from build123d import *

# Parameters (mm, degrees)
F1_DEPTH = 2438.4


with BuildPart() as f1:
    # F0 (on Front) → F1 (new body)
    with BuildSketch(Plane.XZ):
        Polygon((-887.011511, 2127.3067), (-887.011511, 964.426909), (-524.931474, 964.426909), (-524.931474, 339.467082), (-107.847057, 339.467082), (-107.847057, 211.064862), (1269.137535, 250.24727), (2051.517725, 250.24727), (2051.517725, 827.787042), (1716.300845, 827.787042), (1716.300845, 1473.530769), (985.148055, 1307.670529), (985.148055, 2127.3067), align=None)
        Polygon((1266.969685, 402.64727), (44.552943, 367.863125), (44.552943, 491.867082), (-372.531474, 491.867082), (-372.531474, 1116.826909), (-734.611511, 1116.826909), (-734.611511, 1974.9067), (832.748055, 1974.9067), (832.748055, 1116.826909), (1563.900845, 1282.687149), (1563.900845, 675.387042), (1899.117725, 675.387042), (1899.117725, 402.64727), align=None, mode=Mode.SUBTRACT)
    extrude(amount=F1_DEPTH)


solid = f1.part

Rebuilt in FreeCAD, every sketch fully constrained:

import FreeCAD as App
import Part
import Sketcher
from FreeCAD import Vector
Q = App.Units.Quantity

doc = App.newDocument("Part")
body = doc.addObject("PartDesign::Body", "Body")

sketch1 = body.newObject("Sketcher::SketchObject", "Sketch")
sketch1.AttachmentSupport = (doc.getObject("XZ_Plane"), [""])
sketch1.MapMode = "FlatFace"
sketch1.addGeometry([
    Part.LineSegment(Vector(-887, 2127, 0), Vector(-887, 964, 0)),
    Part.LineSegment(Vector(-887, 964, 0), Vector(-525, 964, 0)),
    Part.LineSegment(Vector(-525, 964, 0), Vector(-525, 339, 0)),
    Part.LineSegment(Vector(-525, 339, 0), Vector(-108, 339, 0)),
    Part.LineSegment(Vector(-108, 339, 0), Vector(-108, 211, 0)),
    Part.LineSegment(Vector(-108, 211, 0), Vector(1269, 250, 0)),
    Part.LineSegment(Vector(1269, 250, 0), Vector(2052, 250, 0)),
    Part.LineSegment(Vector(2052, 250, 0), Vector(2052, 828, 0)),
    Part.LineSegment(Vector(2052, 828, 0), Vector(1716, 828, 0)),
    Part.LineSegment(Vector(1716, 828, 0), Vector(1716, 1474, 0)),
    Part.LineSegment(Vector(1716, 1474, 0), Vector(985, 1308, 0)),
    Part.LineSegment(Vector(985, 1308, 0), Vector(985, 2127, 0)),
    Part.LineSegment(Vector(985, 2127, 0), Vector(-887, 2127, 0)),
    Part.LineSegment(Vector(1899, 403, 0), Vector(1267, 403, 0)),
    Part.LineSegment(Vector(1267, 403, 0), Vector(45, 368, 0)),
    Part.LineSegment(Vector(45, 368, 0), Vector(45, 492, 0)),
    Part.LineSegment(Vector(45, 492, 0), Vector(-373, 492, 0)),
    Part.LineSegment(Vector(-373, 492, 0), Vector(-373, 1117, 0)),
    Part.LineSegment(Vector(-373, 1117, 0), Vector(-735, 1117, 0)),
    Part.LineSegment(Vector(-735, 1117, 0), Vector(-735, 1975, 0)),
    Part.LineSegment(Vector(-735, 1975, 0), Vector(833, 1975, 0)),
    Part.LineSegment(Vector(833, 1975, 0), Vector(833, 1117, 0)),
    Part.LineSegment(Vector(833, 1117, 0), Vector(1564, 1283, 0)),
    Part.LineSegment(Vector(1564, 1283, 0), Vector(1564, 675, 0)),
    Part.LineSegment(Vector(1564, 675, 0), Vector(1899, 675, 0)),
    Part.LineSegment(Vector(1899, 675, 0), Vector(1899, 403, 0)),
], False)
sketch1.addConstraint([
    Sketcher.Constraint("Coincident", 0, 2, 1, 1),
    Sketcher.Constraint("Coincident", 1, 2, 2, 1),
    Sketcher.Constraint("Coincident", 2, 2, 3, 1),
    Sketcher.Constraint("Coincident", 3, 2, 4, 1),
    Sketcher.Constraint("Coincident", 4, 2, 5, 1),
    Sketcher.Constraint("Coincident", 5, 2, 6, 1),
    Sketcher.Constraint("Coincident", 6, 2, 7, 1),
    Sketcher.Constraint("Coincident", 7, 2, 8, 1),
    Sketcher.Constraint("Coincident", 8, 2, 9, 1),
    Sketcher.Constraint("Coincident", 9, 2, 10, 1),
    Sketcher.Constraint("Coincident", 10, 2, 11, 1),
    Sketcher.Constraint("Coincident", 11, 2, 12, 1),
    Sketcher.Constraint("Coincident", 12, 2, 0, 1),
    Sketcher.Constraint("Coincident", 13, 2, 14, 1),
    Sketcher.Constraint("Coincident", 14, 2, 15, 1),
    Sketcher.Constraint("Coincident", 15, 2, 16, 1),
    Sketcher.Constraint("Coincident", 16, 2, 17, 1),
    Sketcher.Constraint("Coincident", 17, 2, 18, 1),
    Sketcher.Constraint("Coincident", 18, 2, 19, 1),
    Sketcher.Constraint("Coincident", 19, 2, 20, 1),
    Sketcher.Constraint("Coincident", 20, 2, 21, 1),
    Sketcher.Constraint("Coincident", 21, 2, 22, 1),
    Sketcher.Constraint("Coincident", 22, 2, 23, 1),
    Sketcher.Constraint("Coincident", 23, 2, 24, 1),
    Sketcher.Constraint("Coincident", 24, 2, 25, 1),
    Sketcher.Constraint("Coincident", 25, 2, 13, 1),
    Sketcher.Constraint("Vertical", 0),
    Sketcher.Constraint("Horizontal", 1),
    Sketcher.Constraint("Vertical", 2),
    Sketcher.Constraint("Horizontal", 3),
    Sketcher.Constraint("Vertical", 4),
    Sketcher.Constraint("Horizontal", 6),
    Sketcher.Constraint("Vertical", 7),
    Sketcher.Constraint("Horizontal", 8),
    Sketcher.Constraint("Vertical", 9),
    Sketcher.Constraint("Vertical", 11),
    Sketcher.Constraint("Horizontal", 12),
    Sketcher.Constraint("Horizontal", 13),
    Sketcher.Constraint("Vertical", 15),
    Sketcher.Constraint("Horizontal", 16),
    Sketcher.Constraint("Vertical", 17),
    Sketcher.Constraint("Horizontal", 18),
    Sketcher.Constraint("Vertical", 19),
    Sketcher.Constraint("Horizontal", 20),
    Sketcher.Constraint("Vertical", 21),
    Sketcher.Constraint("Vertical", 23),
    Sketcher.Constraint("Horizontal", 24),
    Sketcher.Constraint("Vertical", 25),
    Sketcher.Constraint("Parallel", 5, 14),
    Sketcher.Constraint("Parallel", 10, 22),
    Sketcher.Constraint("Horizontal", 18, 2, 21, 2),
    Sketcher.Constraint("Equal", 3, 16),
    Sketcher.Constraint("Equal", 1, 18),
    Sketcher.Constraint("Equal", 8, 24),
    Sketcher.Constraint("Equal", 2, 17),
    Sketcher.Constraint("Equal", 10, 22),
    Sketcher.Constraint("DistanceY", 5, 2, 13, 2, Q("6 in")),
    Sketcher.Constraint("DistanceX", 3, 2, 14, 2, Q("6 in")),
    Sketcher.Constraint("DistanceY", 3, 2, 15, 2, Q("6 in")),
    Sketcher.Constraint("DistanceY", 19, 2, 12, 2, Q("6 in")),
    Sketcher.Constraint("DistanceX", 20, 2, 11, 2, Q("6 in")),
    Sketcher.Constraint("DistanceY", 23, 2, 8, 2, Q("6 in")),
    Sketcher.Constraint("DistanceY", -1, 1, 14, 2, Q("14.4828002 in")),
    Sketcher.Constraint("Distance", 10, 749.729299),
    Sketcher.Constraint("DistanceX", 6, 1, 6, 2, 782.38019),
    Sketcher.Constraint("DistanceX", 8, 2, 8, 1, 335.21688),
    Sketcher.Constraint("DistanceX", 13, 2, 13, 1, 632.14804),
    Sketcher.Constraint("DistanceY", 0, 2, 0, 1, 1162.879791),
    Sketcher.Constraint("DistanceY", 4, 2, 4, 1, 128.40222),
    Sketcher.Constraint("DistanceY", 11, 1, 11, 2, 819.636171),
    Sketcher.Constraint("DistanceY", 25, 2, 25, 1, 272.739772),
    Sketcher.Constraint("DistanceY", -1, 1, 11, 2, 2127.3067),
    Sketcher.Constraint("DistanceX", 2, 2, 6, 2, 2576.449199),
    Sketcher.Constraint("DistanceX", 3, 2, 8, 2, 1824.147902),
    Sketcher.Constraint("DistanceY", 6, 2, 9, 2, 1223.283499),
    Sketcher.Constraint("Distance", 5, 1377.541951),
    Sketcher.Constraint("DistanceX", 1, 1, 1, 2, 362.080037),
    Sketcher.Constraint("DistanceX", 0, 2, -1, 1, 887.011511),
])
pad1 = body.newObject("PartDesign::Pad", "Pad")
pad1.Profile = sketch1
pad1.Length = Q("96 in")

doc.recompute()
